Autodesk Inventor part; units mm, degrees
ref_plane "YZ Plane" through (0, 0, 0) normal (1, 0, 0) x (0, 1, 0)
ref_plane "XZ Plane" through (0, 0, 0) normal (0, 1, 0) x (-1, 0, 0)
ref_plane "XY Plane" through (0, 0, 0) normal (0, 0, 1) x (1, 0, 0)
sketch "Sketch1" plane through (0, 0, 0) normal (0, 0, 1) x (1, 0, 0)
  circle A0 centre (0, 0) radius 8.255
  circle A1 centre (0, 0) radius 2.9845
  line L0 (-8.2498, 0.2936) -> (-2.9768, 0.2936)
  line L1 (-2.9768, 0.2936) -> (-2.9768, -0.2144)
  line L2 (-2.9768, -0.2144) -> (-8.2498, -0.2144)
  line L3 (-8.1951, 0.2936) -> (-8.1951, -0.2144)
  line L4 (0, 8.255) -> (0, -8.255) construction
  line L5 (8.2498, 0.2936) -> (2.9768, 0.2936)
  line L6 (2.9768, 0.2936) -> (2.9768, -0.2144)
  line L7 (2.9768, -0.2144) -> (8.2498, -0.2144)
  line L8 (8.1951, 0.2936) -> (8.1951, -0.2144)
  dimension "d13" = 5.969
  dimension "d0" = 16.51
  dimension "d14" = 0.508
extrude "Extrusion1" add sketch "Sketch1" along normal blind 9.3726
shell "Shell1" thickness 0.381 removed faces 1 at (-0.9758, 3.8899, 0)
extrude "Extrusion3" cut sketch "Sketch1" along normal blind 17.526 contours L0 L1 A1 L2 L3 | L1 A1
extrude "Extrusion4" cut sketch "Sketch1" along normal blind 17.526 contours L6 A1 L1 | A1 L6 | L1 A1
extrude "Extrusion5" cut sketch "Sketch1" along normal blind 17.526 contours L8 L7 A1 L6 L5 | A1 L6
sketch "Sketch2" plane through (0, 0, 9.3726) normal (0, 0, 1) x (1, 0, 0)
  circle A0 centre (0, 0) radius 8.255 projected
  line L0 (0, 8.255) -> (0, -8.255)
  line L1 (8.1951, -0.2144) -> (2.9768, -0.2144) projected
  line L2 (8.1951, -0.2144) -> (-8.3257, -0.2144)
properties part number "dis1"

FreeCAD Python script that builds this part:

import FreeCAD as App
import Part
import Sketcher
Q = App.Units.Quantity


def faces_at(feature, points):
    """Names of the faces that lie closest to the given points."""
    faces = feature.Shape.Faces
    near = lambda p: min(range(len(faces)), key=lambda i: faces[i].distToShape(Part.Vertex(*p))[0])
    return sorted({f"Face{near(p) + 1}" for p in points})

doc = App.newDocument("Part")
body = doc.addObject("PartDesign::Body", "Body")

sketch1 = doc.addObject("Sketcher::SketchObject", "Sketch")
body.addObject(sketch1)
sketch1.AttachmentSupport = (doc.XY_Plane, [""])
sketch1.MapMode = "FlatFace"
sketch1.addGeometry(Part.Circle(App.Vector(0, 0, 0), App.Vector(0, 0, 1), 8), False)
sketch1.addConstraint([
    Sketcher.Constraint("Coincident", 0, 3, -1, 1),
    Sketcher.Constraint("Diameter", 0, Q("0.65 in")),
])
pad1 = doc.addObject("PartDesign::Pad", "Pad")
body.addObject(pad1)
pad1.Profile = sketch1
pad1.Length = Q("0.369 in")
doc.recompute()

thickness = doc.addObject("PartDesign::Thickness", "Thickness")
body.addObject(thickness)
thickness.Base = (pad1, faces_at(pad1, [(-0.976, 3.89, 0)]))
thickness.Value = Q("0.015 in")
thickness.Reversed = True
thickness.Join = "Intersection"

sketch2 = doc.addObject("Sketcher::SketchObject", "Sketch001")
body.addObject(sketch2)
sketch2.AttachmentSupport = (doc.XY_Plane, [""])
sketch2.MapMode = "FlatFace"
sketch2.addGeometry([
    Part.LineSegment(App.Vector(-3, 0.3, 0), App.Vector(-8.2, 0.3, 0)),
    Part.LineSegment(App.Vector(-8.2, 0.3, 0), App.Vector(-8.2, -0.2, 0)),
    Part.LineSegment(App.Vector(-8.2, -0.2, 0), App.Vector(-3, -0.2, 0)),
    Part.LineSegment(App.Vector(-3, -0.2, 0), App.Vector(-3, 0.3, 0)),
], False)
sketch2.addConstraint([
    Sketcher.Constraint("Coincident", 0, 2, 1, 1),
    Sketcher.Constraint("Coincident", 1, 2, 2, 1),
    Sketcher.Constraint("Coincident", 2, 2, 3, 1),
    Sketcher.Constraint("Coincident", 3, 2, 0, 1),
    Sketcher.Constraint("Horizontal", 0),
    Sketcher.Constraint("Vertical", 1),
    Sketcher.Constraint("Horizontal", 2),
    Sketcher.Constraint("Vertical", 3),
    Sketcher.Constraint("DistanceY", 1, 2, 1, 1, Q("0.02 in")),
    Sketcher.Constraint("DistanceX", 0, 2, 0, 1, Q("5.2183 mm")),
    Sketcher.Constraint("DistanceX", 2, 2, -1, 1, Q("0.1172 in")),
    Sketcher.Constraint("DistanceY", -1, 1, 0, 2, Q("0.2936 mm")),
])
pocket1 = doc.addObject("PartDesign::Pocket", "Pocket")
body.addObject(pocket1)
pocket1.Profile = sketch2
pocket1.Length = Q("0.69 in")
pocket1.Reversed = True

sketch3 = doc.addObject("Sketcher::SketchObject", "Sketch002")
body.addObject(sketch3)
sketch3.AttachmentSupport = (doc.XY_Plane, [""])
sketch3.MapMode = "FlatFace"
sketch3.addGeometry(Part.Circle(App.Vector(0, 0, 0), App.Vector(0, 0, 1), 3), False)
sketch3.addConstraint([
    Sketcher.Constraint("Coincident", 0, 3, -1, 1),
    Sketcher.Constraint("Diameter", 0, Q("0.235 in")),
])
pocket2 = doc.addObject("PartDesign::Pocket", "Pocket001")
body.addObject(pocket2)
pocket2.Profile = sketch3
pocket2.Length = Q("0.69 in")
pocket2.Reversed = True

sketch4 = doc.addObject("Sketcher::SketchObject", "Sketch003")
body.addObject(sketch4)
sketch4.AttachmentSupport = (doc.XY_Plane, [""])
sketch4.MapMode = "FlatFace"
sketch4.addGeometry([
    Part.LineSegment(App.Vector(8.2, -0.2, 0), App.Vector(8.2, 0.3, 0)),
    Part.LineSegment(App.Vector(8.2, 0.3, 0), App.Vector(3, 0.3, 0)),
    Part.LineSegment(App.Vector(3, 0.3, 0), App.Vector(3, -0.2, 0)),
    Part.LineSegment(App.Vector(3, -0.2, 0), App.Vector(8.2, -0.2, 0)),
], False)
sketch4.addConstraint([
    Sketcher.Constraint("Coincident", 0, 2, 1, 1),
    Sketcher.Constraint("Coincident", 1, 2, 2, 1),
    Sketcher.Constraint("Coincident", 2, 2, 3, 1),
    Sketcher.Constraint("Coincident", 3, 2, 0, 1),
    Sketcher.Constraint("Vertical", 0),
    Sketcher.Constraint("Horizontal", 1),
    Sketcher.Constraint("Vertical", 2),
    Sketcher.Constraint("Horizontal", 3),
    Sketcher.Constraint("DistanceY", 0, 1, 0, 2, Q("0.02 in")),
    Sketcher.Constraint("DistanceX", 1, 2, 1, 1, Q("5.2183 mm")),
    Sketcher.Constraint("DistanceX", -1, 1, 1, 2, Q("0.1172 in")),
    Sketcher.Constraint("DistanceY", -1, 1, 0, 2, Q("0.2936 mm")),
])
pocket3 = doc.addObject("PartDesign::Pocket", "Pocket002")
body.addObject(pocket3)
pocket3.Profile = sketch4
pocket3.Length = Q("0.69 in")
pocket3.Reversed = True

doc.recompute()
